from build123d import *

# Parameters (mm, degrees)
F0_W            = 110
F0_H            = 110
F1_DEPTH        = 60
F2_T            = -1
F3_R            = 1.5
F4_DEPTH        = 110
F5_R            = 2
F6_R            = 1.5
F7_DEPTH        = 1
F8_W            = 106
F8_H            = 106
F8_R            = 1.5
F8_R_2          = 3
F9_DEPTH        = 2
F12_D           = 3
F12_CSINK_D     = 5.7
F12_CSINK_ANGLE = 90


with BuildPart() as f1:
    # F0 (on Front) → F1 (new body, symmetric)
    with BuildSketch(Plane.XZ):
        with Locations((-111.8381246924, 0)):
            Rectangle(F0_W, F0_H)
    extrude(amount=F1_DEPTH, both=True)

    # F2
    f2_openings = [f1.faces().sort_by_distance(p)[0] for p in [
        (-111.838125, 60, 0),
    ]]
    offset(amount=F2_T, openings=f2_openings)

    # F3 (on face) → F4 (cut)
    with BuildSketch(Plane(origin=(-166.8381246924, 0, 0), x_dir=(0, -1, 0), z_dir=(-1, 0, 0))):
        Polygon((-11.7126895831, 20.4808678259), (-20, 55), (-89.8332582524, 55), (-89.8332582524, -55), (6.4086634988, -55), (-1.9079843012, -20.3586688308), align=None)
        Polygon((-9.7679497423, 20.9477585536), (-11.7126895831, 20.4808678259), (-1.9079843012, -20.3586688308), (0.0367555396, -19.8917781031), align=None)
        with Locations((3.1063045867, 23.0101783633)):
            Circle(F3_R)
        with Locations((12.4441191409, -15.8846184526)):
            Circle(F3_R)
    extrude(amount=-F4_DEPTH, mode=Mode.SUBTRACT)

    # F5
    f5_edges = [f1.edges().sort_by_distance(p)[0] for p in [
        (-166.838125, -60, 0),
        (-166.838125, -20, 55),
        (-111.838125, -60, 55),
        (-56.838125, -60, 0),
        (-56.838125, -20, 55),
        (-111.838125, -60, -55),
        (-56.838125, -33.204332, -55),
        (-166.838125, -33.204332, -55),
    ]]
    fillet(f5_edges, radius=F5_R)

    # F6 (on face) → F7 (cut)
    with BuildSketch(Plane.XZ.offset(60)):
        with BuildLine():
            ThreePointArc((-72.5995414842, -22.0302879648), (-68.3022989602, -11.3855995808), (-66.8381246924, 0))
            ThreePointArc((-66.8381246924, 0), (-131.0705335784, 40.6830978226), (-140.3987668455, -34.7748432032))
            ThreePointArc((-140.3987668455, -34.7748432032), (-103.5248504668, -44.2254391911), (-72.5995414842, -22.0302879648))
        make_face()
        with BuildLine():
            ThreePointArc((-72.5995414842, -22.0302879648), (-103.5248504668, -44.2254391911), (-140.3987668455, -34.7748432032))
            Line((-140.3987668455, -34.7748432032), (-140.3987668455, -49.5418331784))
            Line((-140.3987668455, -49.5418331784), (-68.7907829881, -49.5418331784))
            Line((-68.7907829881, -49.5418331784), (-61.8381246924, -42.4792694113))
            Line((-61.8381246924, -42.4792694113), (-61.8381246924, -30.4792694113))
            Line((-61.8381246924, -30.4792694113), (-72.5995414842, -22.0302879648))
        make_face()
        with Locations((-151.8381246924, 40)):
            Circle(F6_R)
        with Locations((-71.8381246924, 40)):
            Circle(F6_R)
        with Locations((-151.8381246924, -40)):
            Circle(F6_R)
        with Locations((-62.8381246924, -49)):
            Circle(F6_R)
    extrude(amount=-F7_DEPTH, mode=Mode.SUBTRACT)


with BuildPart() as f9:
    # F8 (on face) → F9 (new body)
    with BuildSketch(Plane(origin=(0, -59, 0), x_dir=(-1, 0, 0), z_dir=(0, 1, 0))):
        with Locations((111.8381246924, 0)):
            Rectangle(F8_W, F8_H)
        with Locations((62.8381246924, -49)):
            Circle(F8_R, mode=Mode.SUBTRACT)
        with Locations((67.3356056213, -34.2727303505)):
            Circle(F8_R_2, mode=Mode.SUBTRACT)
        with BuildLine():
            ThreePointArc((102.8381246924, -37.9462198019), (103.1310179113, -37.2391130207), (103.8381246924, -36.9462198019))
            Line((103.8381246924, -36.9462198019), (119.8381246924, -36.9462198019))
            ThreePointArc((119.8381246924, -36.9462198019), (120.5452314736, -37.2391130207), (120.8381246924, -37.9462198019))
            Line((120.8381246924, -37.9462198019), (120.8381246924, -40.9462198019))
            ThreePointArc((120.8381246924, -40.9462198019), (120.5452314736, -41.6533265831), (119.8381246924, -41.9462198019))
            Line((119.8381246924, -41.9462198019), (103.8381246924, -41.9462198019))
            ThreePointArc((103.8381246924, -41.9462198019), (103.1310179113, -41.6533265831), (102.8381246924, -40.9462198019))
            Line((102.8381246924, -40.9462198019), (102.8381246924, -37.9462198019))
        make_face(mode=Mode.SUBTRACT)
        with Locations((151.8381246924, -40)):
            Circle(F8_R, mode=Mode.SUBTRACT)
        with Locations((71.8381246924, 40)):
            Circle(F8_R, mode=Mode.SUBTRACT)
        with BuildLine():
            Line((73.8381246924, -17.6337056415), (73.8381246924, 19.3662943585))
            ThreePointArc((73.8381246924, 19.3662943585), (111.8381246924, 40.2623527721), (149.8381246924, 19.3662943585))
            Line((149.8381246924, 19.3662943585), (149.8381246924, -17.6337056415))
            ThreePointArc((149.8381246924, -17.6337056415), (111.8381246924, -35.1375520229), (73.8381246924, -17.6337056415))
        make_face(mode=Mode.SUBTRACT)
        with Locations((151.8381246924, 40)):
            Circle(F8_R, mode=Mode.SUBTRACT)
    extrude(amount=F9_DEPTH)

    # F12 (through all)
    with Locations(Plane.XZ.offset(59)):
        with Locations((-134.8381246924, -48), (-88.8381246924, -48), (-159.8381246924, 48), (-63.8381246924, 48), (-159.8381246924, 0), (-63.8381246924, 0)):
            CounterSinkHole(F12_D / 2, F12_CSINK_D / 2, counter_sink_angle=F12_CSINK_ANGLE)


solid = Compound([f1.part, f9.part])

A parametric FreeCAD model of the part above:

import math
import FreeCAD as App
import Part
import Sketcher
from FreeCAD import Vector
Q = App.Units.Quantity


def edges_at(feature, points):
    """Names of the edges that pass closest to the given points."""
    edges = feature.Shape.Edges
    near = lambda p: min(range(len(edges)), key=lambda i: edges[i].distToShape(Part.Vertex(*p))[0])
    return sorted({f"Edge{near(p) + 1}" for p in points})


def faces_at(feature, points):
    """Names of the faces that lie closest to the given points."""
    faces = feature.Shape.Faces
    near = lambda p: min(range(len(faces)), key=lambda i: faces[i].distToShape(Part.Vertex(*p))[0])
    return sorted({f"Face{near(p) + 1}" for p in points})


def add_polygon(sketch, points):
    """Adds a closed chain of lines whose ends are joined by coincident constraints."""
    first, n = sketch.GeometryCount, len(points)
    for a, b in zip(points, points[1:] + points[:1]):
        sketch.addGeometry(Part.LineSegment(App.Vector(*a, 0), App.Vector(*b, 0)), False)
    for i in range(n):
        sketch.addConstraint(Sketcher.Constraint("Coincident", first + i, 2, first + (i + 1) % n, 1))

doc = App.newDocument("Part")
body = doc.addObject("PartDesign::Body", "Body")

sketch1 = doc.addObject("Sketcher::SketchObject", "Sketch")
body.addObject(sketch1)
sketch1.AttachmentSupport = (doc.XZ_Plane, [""])
sketch1.MapMode = "FlatFace"
add_polygon(sketch1, [(-167, 55), (-167, -55), (-57, -55), (-57, 55)])
sketch1.addConstraint([
    Sketcher.Constraint("Vertical", 0),
    Sketcher.Constraint("Horizontal", 1),
    Sketcher.Constraint("Vertical", 2),
    Sketcher.Constraint("Horizontal", 3),
    Sketcher.Constraint("Equal", 3, 0),
    Sketcher.Constraint("DistanceX", 1, 1, 1, 2, Q("110 mm")),
    Sketcher.Constraint("DistanceY", 0, 2, -1, 1, Q("55 mm")),
    Sketcher.Constraint("DistanceX", 0, 2, -1, 1, Q("166.838125 mm")),
])
pad1 = doc.addObject("PartDesign::Pad", "Pad")
body.addObject(pad1)
pad1.Profile = sketch1
pad1.Length = 120
pad1.Midplane = True
doc.recompute()

thickness = doc.addObject("PartDesign::Thickness", "Thickness")
body.addObject(thickness)
thickness.Base = (pad1, faces_at(pad1, [(-111.838, 60, 0)]))
thickness.Value = 1
thickness.Reversed = True
thickness.Join = "Arc"

sketch2 = doc.addObject("Sketcher::SketchObject", "Sketch001")
body.addObject(sketch2)
sketch2.AttachmentSupport = (doc.YZ_Plane, [""])
sketch2.MapMode = "FlatFace"
sketch2.AttachmentOffset = App.Placement(Vector(0, 0, -166.838125), App.Rotation())
add_polygon(sketch2, [(11.7, 20.5), (20, 55), (89.8, 55), (89.8, -55), (-6.4, -55), (1.9, -20.4), (0, -19.9), (9.8, 20.9)])
sketch2.addGeometry(Part.Circle(Vector(-3.1, 23, 0), Vector(0, 0, 1), 1.5), False)
sketch2.addGeometry(Part.Circle(Vector(-12.4, -15.9, 0), Vector(0, 0, 1), 1.5), False)
sketch2.addConstraint([
    Sketcher.Constraint("Horizontal", 1),
    Sketcher.Constraint("Vertical", 2),
    Sketcher.Constraint("Horizontal", 3),
    Sketcher.Constraint("Equal", 8, 9),
    Sketcher.Constraint("Parallel", 0, 4),
    Sketcher.Constraint("Perpendicular", 4, 5),
    Sketcher.Constraint("Perpendicular", 5, 6),
    Sketcher.Constraint("Perpendicular", 6, 7),
    Sketcher.Constraint("Equal", 5, 7),
    Sketcher.Constraint("Diameter", 8, Q("3 mm")),
    Sketcher.Constraint("DistanceY", 2, 2, 2, 1, Q("110 mm")),
    Sketcher.Constraint("Distance", 5, Q("2 mm")),
    Sketcher.Constraint("Distance", 6, Q("42 mm")),
    Sketcher.Constraint("DistanceX", -1, 1, 0, 2, Q("20 mm")),
    Sketcher.Constraint("DistanceY", -1, 1, 0, 2, Q("55 mm")),
    Sketcher.Constraint("Angle", 0, Q("76.5 deg")),
    Sketcher.Constraint("Distance", 0, Q("35.5 mm")),
    Sketcher.Constraint("DistanceX", 1, 1, 1, 2, Q("69.833258 mm")),
    Sketcher.Constraint("DistanceY", -1, 1, 8, 3, Q("23.010178 mm")),
    Sketcher.Constraint("DistanceX", 9, 3, -1, 1, Q("12.444119 mm")),
    Sketcher.Constraint("DistanceY", 9, 3, -1, 1, Q("15.884618 mm")),
    Sketcher.Constraint("DistanceX", 3, 2, 8, 3, Q("3.302359 mm")),
])
pocket1 = doc.addObject("PartDesign::Pocket", "Pocket")
body.addObject(pocket1)
pocket1.Profile = sketch2
pocket1.Length = 110
pocket1.Reversed = True
doc.recompute()

fillet = doc.addObject("PartDesign::Fillet", "Fillet")
body.addObject(fillet)
fillet.Base = (pocket1, edges_at(pocket1, [
    (-166.838, -60, 0),
    (-166.838, -20, 55),
    (-111.838, -60, 55),
    (-56.838, -60, 0),
    (-56.838, -20, 55),
    (-111.838, -60, -55),
    (-56.838, -33.204, -55),
    (-166.838, -33.204, -55),
]))
fillet.Radius = 2

sketch3 = doc.addObject("Sketcher::SketchObject", "Sketch002")
body.addObject(sketch3)
sketch3.AttachmentSupport = (doc.XZ_Plane, [""])
sketch3.MapMode = "FlatFace"
sketch3.AttachmentOffset = App.Placement(Vector(0, 0, 60), App.Rotation())
sketch3.addGeometry([
    Part.ArcOfCircle(Part.Circle(Vector(-111.8, 0, 0), Vector(0, 0, 1), 45), math.radians(-29), math.radians(0)),
    Part.ArcOfCircle(Part.Circle(Vector(-111.8, 0, 0), Vector(0, 0, 1), 45), math.radians(0), math.radians(231)),
    Part.LineSegment(Vector(-140.4, -34.8, 0), Vector(-140.4, -49.5, 0)),
    Part.LineSegment(Vector(-140.4, -49.5, 0), Vector(-68.8, -49.5, 0)),
    Part.LineSegment(Vector(-68.8, -49.5, 0), Vector(-61.8, -42.5, 0)),
    Part.LineSegment(Vector(-61.8, -42.5, 0), Vector(-61.8, -30.5, 0)),
    Part.LineSegment(Vector(-61.8, -30.5, 0), Vector(-72.6, -22, 0)),
    Part.Circle(Vector(-151.8, 40, 0), Vector(0, 0, 1), 1.5),
    Part.Circle(Vector(-71.8, 40, 0), Vector(0, 0, 1), 1.5),
    Part.Circle(Vector(-151.8, -40, 0), Vector(0, 0, 1), 1.5),
    Part.Circle(Vector(-62.8, -49, 0), Vector(0, 0, 1), 1.5),
], False)
sketch3.addConstraint([
    Sketcher.Constraint("Tangent", 0, 2, 1, 1),
    Sketcher.Constraint("Coincident", 1, 2, 2, 1),
    Sketcher.Constraint("Coincident", 2, 2, 3, 1),
    Sketcher.Constraint("Coincident", 3, 2, 4, 1),
    Sketcher.Constraint("Coincident", 4, 2, 5, 1),
    Sketcher.Constraint("Coincident", 5, 2, 6, 1),
    Sketcher.Constraint("Coincident", 6, 2, 0, 1),
    Sketcher.Constraint("Vertical", 2),
    Sketcher.Constraint("Horizontal", 3),
    Sketcher.Constraint("Vertical", 5),
    Sketcher.Constraint("Equal", 0, 1),
    Sketcher.Constraint("Equal", 7, 8),
    Sketcher.Constraint("Equal", 8, 9),
    Sketcher.Constraint("Equal", 9, 10),
    Sketcher.Constraint("Symmetric", 7, 3, 9, 3, -1),
    Sketcher.Constraint("PointOnObject", 0, 3, -1),
    Sketcher.Constraint("PointOnObject", 0, 2, -1),
    Sketcher.Constraint("Horizontal", 7, 3, 8, 3),
    Sketcher.Constraint("Diameter", 7, Q("3 mm")),
    Sketcher.Constraint("Radius", 0, Q("45 mm")),
    Sketcher.Constraint("DistanceY", 5, 1, 5, 2, Q("12 mm")),
    Sketcher.Constraint("DistanceY", -1, 1, 7, 3, Q("40 mm")),
    Sketcher.Constraint("DistanceY", 10, 3, -1, 1, Q("49 mm")),
    Sketcher.Constraint("DistanceX", 7, 3, 0, 3, Q("40 mm")),
    Sketcher.Constraint("DistanceX", 1, 3, 8, 3, Q("40 mm")),
    Sketcher.Constraint("DistanceX", 1, 3, 10, 3, Q("49 mm")),
    Sketcher.Constraint("DistanceX", 10, 3, 4, 2, Q("1 mm")),
    Sketcher.Constraint("DistanceY", 2, 2, 2, 1, Q("14.76699 mm")),
    Sketcher.Constraint("DistanceX", 3, 1, 3, 2, Q("71.607984 mm")),
    Sketcher.Constraint("DistanceY", 4, 2, -1, 1, Q("42.479269 mm")),
    Sketcher.Constraint("DistanceX", 6, 2, -1, 1, Q("72.599541 mm")),
    Sketcher.Constraint("DistanceX", 3, 2, 10, 3, Q("5.952658 mm")),
    Sketcher.Constraint("DistanceY", 5, 2, 6, 2, Q("8.448981 mm")),
])
pocket2 = doc.addObject("PartDesign::Pocket", "Pocket001")
body.addObject(pocket2)
pocket2.Profile = sketch3
pocket2.Length = 1
body2 = doc.addObject("PartDesign::Body", "Body001")

sketch4 = doc.addObject("Sketcher::SketchObject", "Sketch003")
body2.addObject(sketch4)
sketch4.AttachmentSupport = (doc.getObject("XZ_Plane001"), [""])
sketch4.MapMode = "FlatFace"
sketch4.AttachmentOffset = App.Placement(Vector(0, 0, 59), App.Rotation())
add_polygon(sketch4, [(-58.8, 53), (-58.8, -53), (-164.8, -53), (-164.8, 53)])
sketch4.addGeometry(Part.Circle(Vector(-62.8, -49, 0), Vector(0, 0, 1), 1.5), False)
sketch4.addGeometry(Part.Circle(Vector(-67.3, -34.3, 0), Vector(0, 0, 1), 3), False)
sketch4.addGeometry(Part.LineSegment(Vector(-102.8, -40.9, 0), Vector(-102.8, -37.9, 0)), False)
sketch4.addGeometry(Part.ArcOfCircle(Part.Circle(Vector(-103.8, -37.9, 0), Vector(0, 0, 1), 1), math.radians(0), math.radians(90)), False)
sketch4.addGeometry(Part.LineSegment(Vector(-103.8, -36.9, 0), Vector(-119.8, -36.9, 0)), False)
sketch4.addGeometry(Part.ArcOfCircle(Part.Circle(Vector(-119.8, -37.9, 0), Vector(0, 0, 1), 1), math.radians(90), math.radians(180)), False)
sketch4.addGeometry(Part.LineSegment(Vector(-120.8, -37.9, 0), Vector(-120.8, -40.9, 0)), False)
sketch4.addGeometry(Part.ArcOfCircle(Part.Circle(Vector(-119.8, -40.9, 0), Vector(0, 0, 1), 1), math.radians(180), math.radians(270)), False)
sketch4.addGeometry(Part.LineSegment(Vector(-119.8, -41.9, 0), Vector(-103.8, -41.9, 0)), False)
sketch4.addGeometry(Part.ArcOfCircle(Part.Circle(Vector(-103.8, -40.9, 0), Vector(0, 0, 1), 1), math.radians(-90), math.radians(0)), False)
sketch4.addGeometry(Part.Circle(Vector(-151.8, -40, 0), Vector(0, 0, 1), 1.5), False)
sketch4.addGeometry(Part.Circle(Vector(-71.8, 40, 0), Vector(0, 0, 1), 1.5), False)
sketch4.addGeometry(Part.ArcOfCircle(Part.Circle(Vector(-111.8, 14.9, 0), Vector(0, 0, 1), 50), math.radians(-139), math.radians(-41)), False)
sketch4.addGeometry(Part.LineSegment(Vector(-73.8, -17.6, 0), Vector(-73.8, 19.4, 0)), False)
sketch4.addGeometry(Part.ArcOfCircle(Part.Circle(Vector(-111.8, -4.7, 0), Vector(0, 0, 1), 45), math.radians(32), math.radians(148)), False)
sketch4.addGeometry(Part.LineSegment(Vector(-149.8, 19.4, 0), Vector(-149.8, -17.6, 0)), False)
sketch4.addGeometry(Part.Circle(Vector(-151.8, 40, 0), Vector(0, 0, 1), 1.5), False)
sketch4.addConstraint([
    Sketcher.Constraint("Tangent", 6, 2, 7, 1),
    Sketcher.Constraint("Tangent", 7, 2, 8, 1),
    Sketcher.Constraint("Tangent", 8, 2, 9, 1),
    Sketcher.Constraint("Tangent", 9, 2, 10, 1),
    Sketcher.Constraint("Tangent", 10, 2, 11, 1),
    Sketcher.Constraint("Tangent", 11, 2, 12, 1),
    Sketcher.Constraint("Tangent", 12, 2, 13, 1),
    Sketcher.Constraint("Tangent", 13, 2, 6, 1),
    Sketcher.Constraint("Coincident", 16, 2, 17, 1),
    Sketcher.Constraint("Coincident", 17, 2, 18, 1),
    Sketcher.Constraint("Coincident", 18, 2, 19, 1),
    Sketcher.Constraint("Coincident", 19, 2, 16, 1),
    Sketcher.Constraint("Vertical", 0),
    Sketcher.Constraint("Horizontal", 1),
    Sketcher.Constraint("Vertical", 2),
    Sketcher.Constraint("Horizontal", 3),
    Sketcher.Constraint("Vertical", 6),
    Sketcher.Constraint("Horizontal", 8),
    Sketcher.Constraint("Vertical", 10),
    Sketcher.Constraint("Horizontal", 12),
    Sketcher.Constraint("Vertical", 17),
    Sketcher.Constraint("Vertical", 19),
    Sketcher.Constraint("Equal", 7, 9),
    Sketcher.Constraint("Equal", 9, 11),
    Sketcher.Constraint("Equal", 11, 13),
    Sketcher.Constraint("Equal", 4, 14),
    Sketcher.Constraint("Equal", 14, 15),
    Sketcher.Constraint("Equal", 15, 20),
    Sketcher.Constraint("Symmetric", 14, 3, 20, 3, -1),
    Sketcher.Constraint("Horizontal", 15, 3, 20, 3),
    Sketcher.Constraint("Horizontal", 17, 2, 18, 2),
    Sketcher.Constraint("Horizontal", 16, 2, 19, 2),
    Sketcher.Constraint("Equal", 3, 0),
    Sketcher.Constraint("Diameter", 4, Q("3 mm")),
    Sketcher.Constraint("Diameter", 5, Q("6 mm")),
    Sketcher.Constraint("Radius", 7, Q("1 mm")),
    Sketcher.Constraint("Radius", 16, Q("50 mm")),
    Sketcher.Constraint("Radius", 18, Q("45 mm")),
    Sketcher.Constraint("DistanceX", 1, 2, 1, 1, Q("106 mm")),
    Sketcher.Constraint("DistanceX", 8, 2, 8, 1, Q("16 mm")),
    Sketcher.Constraint("DistanceY", 6, 1, 6, 2, Q("3 mm")),
    Sketcher.Constraint("DistanceY", 17, 1, 17, 2, Q("37 mm")),
    Sketcher.Constraint("DistanceY", 4, 3, -1, 1, Q("49 mm")),
    Sketcher.Constraint("DistanceY", 14, 3, -1, 1, Q("40 mm")),
    Sketcher.Constraint("DistanceY", 0, 2, -1, 1, Q("53 mm")),
    Sketcher.Constraint("DistanceX", 7, 3, 4, 3, Q("41 mm")),
    Sketcher.Constraint("DistanceX", 14, 3, 11, 3, Q("32 mm")),
    Sketcher.Constraint("DistanceX", 7, 3, 15, 3, Q("32 mm")),
    Sketcher.Constraint("DistanceX", 16, 3, 15, 3, Q("40 mm")),
    Sketcher.Constraint("DistanceX", 4, 3, 0, 2, Q("4 mm")),
    Sketcher.Constraint("DistanceX", 16, 2, 4, 3, Q("11 mm")),
    Sketcher.Constraint("DistanceY", 5, 3, -1, 1, Q("34.27273 mm")),
    Sketcher.Constraint("DistanceY", 7, 3, -1, 1, Q("37.94622 mm")),
    Sketcher.Constraint("DistanceX", 5, 3, 4, 3, Q("4.497481 mm")),
    Sketcher.Constraint("DistanceX", 4, 3, -1, 1, Q("62.838125 mm")),
    Sketcher.Constraint("DistanceY", -1, 1, 16, 3, Q("14.862448 mm")),
])
pad2 = doc.addObject("PartDesign::Pad", "Pad001")
body2.addObject(pad2)
pad2.Profile = sketch4
pad2.Length = 2
pad2.Reversed = True

sketch5 = doc.addObject("Sketcher::SketchObject", "Sketch004")
body2.addObject(sketch5)
sketch5.AttachmentSupport = (doc.getObject("XZ_Plane001"), [""])
sketch5.MapMode = "FlatFace"
sketch5.AttachmentOffset = App.Placement(Vector(0, 0, 59), App.Rotation())
sketch5.addGeometry([
    Part.Circle(Vector(-134.8, -48, 0), Vector(0, 0, 1), 1.5),
    Part.Circle(Vector(-88.8, -48, 0), Vector(0, 0, 1), 1.5),
    Part.Circle(Vector(-159.8, 48, 0), Vector(0, 0, 1), 1.5),
    Part.Circle(Vector(-63.8, 48, 0), Vector(0, 0, 1), 1.5),
    Part.Circle(Vector(-159.8, 0, 0), Vector(0, 0, 1), 1.5),
    Part.Circle(Vector(-63.8, 0, 0), Vector(0, 0, 1), 1.5),
], False)
sketch5.addConstraint([
    Sketcher.Constraint("Equal", 0, 1),
    Sketcher.Constraint("Equal", 1, 2),
    Sketcher.Constraint("Equal", 2, 3),
    Sketcher.Constraint("Equal", 3, 4),
    Sketcher.Constraint("Equal", 4, 5),
    Sketcher.Constraint("PointOnObject", 4, 3, -1),
    Sketcher.Constraint("PointOnObject", 5, 3, -1),
    Sketcher.Constraint("Horizontal", 0, 3, 1, 3),
    Sketcher.Constraint("Horizontal", 2, 3, 3, 3),
    Sketcher.Constraint("Vertical", 2, 3, 4, 3),
    Sketcher.Constraint("Vertical", 3, 3, 5, 3),
    Sketcher.Constraint("Diameter", 0, Q("3 mm")),
    Sketcher.Constraint("DistanceY", 0, 3, -1, 1, Q("48 mm")),
    Sketcher.Constraint("DistanceY", -1, 1, 2, 3, Q("48 mm")),
    Sketcher.Constraint("DistanceX", 0, 3, 1, 3, Q("46 mm")),
    Sketcher.Constraint("DistanceX", 2, 3, 0, 3, Q("25 mm")),
    Sketcher.Constraint("DistanceX", 2, 3, 3, 3, Q("96 mm")),
    Sketcher.Constraint("DistanceX", 0, 3, -1, 1, Q("134.838125 mm")),
])
doc.recompute()
hole = doc.addObject("PartDesign::Hole", "Hole")
body2.addObject(hole)
hole.Profile = sketch5
hole.ThreadType = "None"
hole.Diameter = 3
hole.DepthType = "ThroughAll"
hole.HoleCutType = "Countersink"
hole.HoleCutDiameter = 5.7
hole.HoleCutCountersinkAngle = 90

doc.recompute()
